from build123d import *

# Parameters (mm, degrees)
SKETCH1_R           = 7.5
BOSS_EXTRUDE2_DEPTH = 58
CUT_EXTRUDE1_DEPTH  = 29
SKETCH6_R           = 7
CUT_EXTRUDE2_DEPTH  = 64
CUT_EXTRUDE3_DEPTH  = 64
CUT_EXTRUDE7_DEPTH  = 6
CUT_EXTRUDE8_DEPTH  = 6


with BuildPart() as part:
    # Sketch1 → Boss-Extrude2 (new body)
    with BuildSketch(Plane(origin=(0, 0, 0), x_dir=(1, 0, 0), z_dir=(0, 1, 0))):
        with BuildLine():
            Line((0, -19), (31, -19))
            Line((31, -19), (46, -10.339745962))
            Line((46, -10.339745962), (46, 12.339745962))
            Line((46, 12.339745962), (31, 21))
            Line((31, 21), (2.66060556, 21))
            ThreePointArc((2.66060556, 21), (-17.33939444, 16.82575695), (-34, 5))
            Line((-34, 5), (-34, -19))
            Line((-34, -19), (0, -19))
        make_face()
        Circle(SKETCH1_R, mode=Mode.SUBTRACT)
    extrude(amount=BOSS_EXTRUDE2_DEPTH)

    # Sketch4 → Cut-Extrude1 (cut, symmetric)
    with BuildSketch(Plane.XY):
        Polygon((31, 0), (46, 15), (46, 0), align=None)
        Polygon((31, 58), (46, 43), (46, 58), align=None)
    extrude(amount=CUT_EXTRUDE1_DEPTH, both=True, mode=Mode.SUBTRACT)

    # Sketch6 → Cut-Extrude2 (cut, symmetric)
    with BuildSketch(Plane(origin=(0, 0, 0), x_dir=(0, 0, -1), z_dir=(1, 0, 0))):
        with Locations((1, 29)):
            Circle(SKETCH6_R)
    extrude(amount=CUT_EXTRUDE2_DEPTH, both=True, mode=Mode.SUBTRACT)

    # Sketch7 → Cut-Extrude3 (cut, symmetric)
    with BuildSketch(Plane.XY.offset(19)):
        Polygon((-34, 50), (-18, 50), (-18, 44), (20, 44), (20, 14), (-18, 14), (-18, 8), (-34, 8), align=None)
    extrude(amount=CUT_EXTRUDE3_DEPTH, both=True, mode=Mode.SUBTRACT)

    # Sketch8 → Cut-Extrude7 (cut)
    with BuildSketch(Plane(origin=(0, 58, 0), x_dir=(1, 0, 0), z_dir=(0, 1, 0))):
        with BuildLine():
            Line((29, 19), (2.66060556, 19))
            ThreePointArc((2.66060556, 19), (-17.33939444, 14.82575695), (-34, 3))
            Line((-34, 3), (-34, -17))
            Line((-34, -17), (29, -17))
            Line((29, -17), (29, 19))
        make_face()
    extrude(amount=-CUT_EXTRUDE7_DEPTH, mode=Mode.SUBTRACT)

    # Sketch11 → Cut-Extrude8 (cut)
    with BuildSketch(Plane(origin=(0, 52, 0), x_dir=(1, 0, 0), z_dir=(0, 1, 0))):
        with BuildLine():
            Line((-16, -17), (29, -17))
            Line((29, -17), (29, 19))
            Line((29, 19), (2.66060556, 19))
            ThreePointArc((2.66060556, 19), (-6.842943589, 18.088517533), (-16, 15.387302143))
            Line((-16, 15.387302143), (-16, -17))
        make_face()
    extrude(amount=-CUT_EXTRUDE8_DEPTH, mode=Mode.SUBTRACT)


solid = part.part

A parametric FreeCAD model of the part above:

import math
import FreeCAD as App
import Part
import Sketcher
Q = App.Units.Quantity

doc = App.newDocument("Part")
body = doc.addObject("PartDesign::Body", "Body")

# Sketch on XZ plane
sketch1 = body.newObject("Sketcher::SketchObject", "Sketch")
sketch1.AttachmentSupport = (doc.getObject("XZ_Plane"), [""])
sketch1.MapMode = "FlatFace"
sketch1.addGeometry([
    Part.LineSegment(App.Vector(31, 19, 0), App.Vector(46, 10, 0)),  # 0
    Part.LineSegment(App.Vector(46, 10, 0), App.Vector(46, -12, 0)),  # 1
    Part.LineSegment(App.Vector(46, -12, 0), App.Vector(31, -21, 0)),  # 2
    Part.LineSegment(App.Vector(31, -21, 0), App.Vector(3, -21, 0)),  # 3
    Part.ArcOfCircle(Part.Circle(App.Vector(3, 29, 0), App.Vector(0, 0, 1), 50), math.radians(-137), math.radians(-90)),  # 4
    Part.LineSegment(App.Vector(-34, -5, 0), App.Vector(-34, 19, 0)),  # 5
    Part.LineSegment(App.Vector(-34, 19, 0), App.Vector(31, 19, 0)),  # 6
    Part.Circle(App.Vector(0, 0, 0), App.Vector(0, 0, 1), 8),  # 7
], False)
sketch1.addConstraint([
    Sketcher.Constraint("Coincident", 0, 2, 1, 1),
    Sketcher.Constraint("Coincident", 1, 2, 2, 1),
    Sketcher.Constraint("Coincident", 2, 2, 3, 1),
    Sketcher.Constraint("Tangent", 3, 2, 4, 2),
    Sketcher.Constraint("Coincident", 4, 1, 5, 1),
    Sketcher.Constraint("Coincident", 5, 2, 6, 1),
    Sketcher.Constraint("Coincident", 6, 2, 0, 1),
    Sketcher.Constraint("Vertical", 1),
    Sketcher.Constraint("Horizontal", 3),
    Sketcher.Constraint("Vertical", 5),
    Sketcher.Constraint("Horizontal", 6),
    Sketcher.Constraint("Coincident", 7, 3, -1, 1),
    Sketcher.Constraint("Vertical", 2, 2, 6, 2),
    Sketcher.Constraint("Equal", 0, 2),
    Sketcher.Constraint("Diameter", 7, 15.0),
    Sketcher.Constraint("Radius", 4, 50.0),
    Sketcher.Constraint("DistanceX", 6, 1, 6, 2, 65.0),
    Sketcher.Constraint("DistanceY", 5, 1, 5, 2, 24.0),
    Sketcher.Constraint("Angle", 0, Q("-30 deg")),
    Sketcher.Constraint("DistanceY", -1, 1, 4, 3, 29.0),
    Sketcher.Constraint("DistanceX", -1, 1, 0, 2, 46.0),
    Sketcher.Constraint("DistanceX", -1, 1, 2, 2, 31.0),
    Sketcher.Constraint("DistanceY", 4, 1, -1, 1, 5.0),
])
pad1 = body.newObject("PartDesign::Pad", "Pad")
pad1.Profile = sketch1
pad1.Length = 58
pad1.Reversed = True

# Sketch on XY plane
sketch2 = body.newObject("Sketcher::SketchObject", "Sketch001")
sketch2.AttachmentSupport = (doc.getObject("XY_Plane"), [""])
sketch2.MapMode = "FlatFace"
sketch2.addGeometry([
    Part.LineSegment(App.Vector(46, 15, 0), App.Vector(31, 0, 0)),  # 0
    Part.LineSegment(App.Vector(31, 0, 0), App.Vector(46, 0, 0)),  # 1
    Part.LineSegment(App.Vector(46, 0, 0), App.Vector(46, 15, 0)),  # 2
    Part.LineSegment(App.Vector(31, 58, 0), App.Vector(46, 43, 0)),  # 3
    Part.LineSegment(App.Vector(46, 43, 0), App.Vector(46, 58, 0)),  # 4
    Part.LineSegment(App.Vector(46, 58, 0), App.Vector(31, 58, 0)),  # 5
], False)
sketch2.addConstraint([
    Sketcher.Constraint("Coincident", 0, 2, 1, 1),
    Sketcher.Constraint("Coincident", 1, 2, 2, 1),
    Sketcher.Constraint("Coincident", 2, 2, 0, 1),
    Sketcher.Constraint("Coincident", 3, 2, 4, 1),
    Sketcher.Constraint("Coincident", 4, 2, 5, 1),
    Sketcher.Constraint("Coincident", 5, 2, 3, 1),
    Sketcher.Constraint("Horizontal", 1),
    Sketcher.Constraint("Vertical", 2),
    Sketcher.Constraint("Vertical", 4),
    Sketcher.Constraint("Horizontal", 5),
    Sketcher.Constraint("PointOnObject", 0, 2, -1),
    Sketcher.Constraint("Perpendicular", 0, 3),
    Sketcher.Constraint("Vertical", 2, 2, 3, 2),
    Sketcher.Constraint("Vertical", 0, 2, 5, 2),
    Sketcher.Constraint("Equal", 5, 2),
    Sketcher.Constraint("DistanceX", 1, 1, 1, 2, 15.0),
    Sketcher.Constraint("DistanceX", -1, 1, 0, 2, 31.0),
    Sketcher.Constraint("DistanceY", -1, 1, 3, 2, 43.0),
])
pocket1 = body.newObject("PartDesign::Pocket", "Pocket")
pocket1.Profile = sketch2
pocket1.Length = 58
pocket1.Midplane = True

# Sketch on YZ plane
sketch3 = body.newObject("Sketcher::SketchObject", "Sketch002")
sketch3.AttachmentSupport = (doc.getObject("YZ_Plane"), [""])
sketch3.MapMode = "FlatFace"
sketch3.addGeometry(Part.Circle(App.Vector(29, -1, 0), App.Vector(0, 0, 1), 7), False)
sketch3.addConstraint([
    Sketcher.Constraint("Diameter", 0, 14.0),
    Sketcher.Constraint("DistanceX", -1, 1, 0, 3, 29.0),
    Sketcher.Constraint("DistanceY", 0, 3, -1, 1, 1.0),
])
pocket2 = body.newObject("PartDesign::Pocket", "Pocket001")
pocket2.Profile = sketch3
pocket2.Length = 128
pocket2.Midplane = True

# Sketch on XY plane
sketch4 = body.newObject("Sketcher::SketchObject", "Sketch003")
sketch4.AttachmentSupport = (doc.getObject("XY_Plane"), [""])
sketch4.MapMode = "FlatFace"
sketch4.AttachmentOffset = App.Placement(App.Vector(0, 0, 19), App.Rotation())
sketch4.addGeometry([
    Part.LineSegment(App.Vector(-18, 50, 0), App.Vector(-34, 50, 0)),  # 0
    Part.LineSegment(App.Vector(-34, 50, 0), App.Vector(-34, 8, 0)),  # 1
    Part.LineSegment(App.Vector(-34, 8, 0), App.Vector(-18, 8, 0)),  # 2
    Part.LineSegment(App.Vector(-18, 8, 0), App.Vector(-18, 14, 0)),  # 3
    Part.LineSegment(App.Vector(-18, 14, 0), App.Vector(20, 14, 0)),  # 4
    Part.LineSegment(App.Vector(20, 14, 0), App.Vector(20, 44, 0)),  # 5
    Part.LineSegment(App.Vector(20, 44, 0), App.Vector(-18, 44, 0)),  # 6
    Part.LineSegment(App.Vector(-18, 44, 0), App.Vector(-18, 50, 0)),  # 7
], False)
sketch4.addConstraint([
    Sketcher.Constraint("Coincident", 0, 2, 1, 1),
    Sketcher.Constraint("Coincident", 1, 2, 2, 1),
    Sketcher.Constraint("Coincident", 2, 2, 3, 1),
    Sketcher.Constraint("Coincident", 3, 2, 4, 1),
    Sketcher.Constraint("Coincident", 4, 2, 5, 1),
    Sketcher.Constraint("Coincident", 5, 2, 6, 1),
    Sketcher.Constraint("Coincident", 6, 2, 7, 1),
    Sketcher.Constraint("Coincident", 7, 2, 0, 1),
    Sketcher.Constraint("Horizontal", 0),
    Sketcher.Constraint("Vertical", 1),
    Sketcher.Constraint("Horizontal", 2),
    Sketcher.Constraint("Vertical", 3),
    Sketcher.Constraint("Horizontal", 4),
    Sketcher.Constraint("Vertical", 5),
    Sketcher.Constraint("Horizontal", 6),
    Sketcher.Constraint("Vertical", 7),
    Sketcher.Constraint("Vertical", 3, 2, 6, 2),
    Sketcher.Constraint("Equal", 3, 7),
    Sketcher.Constraint("DistanceX", 0, 2, 0, 1, 16.0),
    Sketcher.Constraint("DistanceX", 4, 1, 4, 2, 38.0),
    Sketcher.Constraint("DistanceY", 1, 2, 1, 1, 42.0),
    Sketcher.Constraint("DistanceY", 3, 1, 3, 2, 6.0),
    Sketcher.Constraint("DistanceX", 0, 2, -1, 1, 34.0),
    Sketcher.Constraint("DistanceY", -1, 1, 0, 2, 50.0),
])
pocket3 = body.newObject("PartDesign::Pocket", "Pocket002")
pocket3.Profile = sketch4
pocket3.Length = 128
pocket3.Midplane = True

# Sketch on XZ plane
sketch5 = body.newObject("Sketcher::SketchObject", "Sketch004")
sketch5.AttachmentSupport = (doc.getObject("XZ_Plane"), [""])
sketch5.MapMode = "FlatFace"
sketch5.AttachmentOffset = App.Placement(App.Vector(0, 0, -58), App.Rotation())
sketch5.addGeometry([
    Part.LineSegment(App.Vector(29, -19, 0), App.Vector(3, -19, 0)),  # 0
    Part.ArcOfCircle(Part.Circle(App.Vector(3, 31, 0), App.Vector(0, 0, 1), 50), math.radians(-137), math.radians(-90)),  # 1
    Part.LineSegment(App.Vector(-34, -3, 0), App.Vector(-34, 17, 0)),  # 2
    Part.LineSegment(App.Vector(-34, 17, 0), App.Vector(29, 17, 0)),  # 3
    Part.LineSegment(App.Vector(29, 17, 0), App.Vector(29, -19, 0)),  # 4
], False)
sketch5.addConstraint([
    Sketcher.Constraint("Tangent", 0, 2, 1, 2),
    Sketcher.Constraint("Coincident", 1, 1, 2, 1),
    Sketcher.Constraint("Coincident", 2, 2, 3, 1),
    Sketcher.Constraint("Coincident", 3, 2, 4, 1),
    Sketcher.Constraint("Coincident", 4, 2, 0, 1),
    Sketcher.Constraint("Horizontal", 0),
    Sketcher.Constraint("Vertical", 2),
    Sketcher.Constraint("Horizontal", 3),
    Sketcher.Constraint("Vertical", 4),
    Sketcher.Constraint("Radius", 1, 50.0),
    Sketcher.Constraint("DistanceX", 3, 1, 3, 2, 63.0),
    Sketcher.Constraint("DistanceY", 2, 1, 2, 2, 20.0),
    Sketcher.Constraint("DistanceY", 4, 2, 4, 1, 36.0),
    Sketcher.Constraint("DistanceY", -1, 1, 1, 3, 31.0),
    Sketcher.Constraint("DistanceX", 1, 1, -1, 1, 34.0),
])
pocket4 = body.newObject("PartDesign::Pocket", "Pocket003")
pocket4.Profile = sketch5
pocket4.Length = 6
pocket4.Reversed = True

# Sketch on XZ plane
sketch6 = body.newObject("Sketcher::SketchObject", "Sketch005")
sketch6.AttachmentSupport = (doc.getObject("XZ_Plane"), [""])
sketch6.MapMode = "FlatFace"
sketch6.AttachmentOffset = App.Placement(App.Vector(0, 0, -52), App.Rotation())
sketch6.addGeometry([
    Part.LineSegment(App.Vector(-16, 17, 0), App.Vector(29, 17, 0)),  # 0
    Part.LineSegment(App.Vector(29, 17, 0), App.Vector(29, -19, 0)),  # 1
    Part.LineSegment(App.Vector(29, -19, 0), App.Vector(3, -19, 0)),  # 2
    Part.ArcOfCircle(Part.Circle(App.Vector(3, 31, 0), App.Vector(0, 0, 1), 50), math.radians(-112), math.radians(-90)),  # 3
    Part.LineSegment(App.Vector(-16, -15, 0), App.Vector(-16, 17, 0)),  # 4
], False)
sketch6.addConstraint([
    Sketcher.Constraint("Coincident", 0, 2, 1, 1),
    Sketcher.Constraint("Coincident", 1, 2, 2, 1),
    Sketcher.Constraint("Tangent", 2, 2, 3, 2),
    Sketcher.Constraint("Coincident", 3, 1, 4, 1),
    Sketcher.Constraint("Coincident", 4, 2, 0, 1),
    Sketcher.Constraint("Horizontal", 0),
    Sketcher.Constraint("Vertical", 1),
    Sketcher.Constraint("Horizontal", 2),
    Sketcher.Constraint("Vertical", 4),
    Sketcher.Constraint("Radius", 3, 50.0),
    Sketcher.Constraint("DistanceX", 0, 1, 0, 2, 45.0),
    Sketcher.Constraint("DistanceY", 1, 2, 1, 1, 36.0),
    Sketcher.Constraint("DistanceY", -1, 1, 3, 3, 31.0),
    Sketcher.Constraint("DistanceX", -1, 1, 0, 2, 29.0),
    Sketcher.Constraint("DistanceX", 2, 2, 2, 1, 26.339394),
])
pocket5 = body.newObject("PartDesign::Pocket", "Pocket004")
pocket5.Profile = sketch6
pocket5.Length = 6
pocket5.Reversed = True

doc.recompute()
